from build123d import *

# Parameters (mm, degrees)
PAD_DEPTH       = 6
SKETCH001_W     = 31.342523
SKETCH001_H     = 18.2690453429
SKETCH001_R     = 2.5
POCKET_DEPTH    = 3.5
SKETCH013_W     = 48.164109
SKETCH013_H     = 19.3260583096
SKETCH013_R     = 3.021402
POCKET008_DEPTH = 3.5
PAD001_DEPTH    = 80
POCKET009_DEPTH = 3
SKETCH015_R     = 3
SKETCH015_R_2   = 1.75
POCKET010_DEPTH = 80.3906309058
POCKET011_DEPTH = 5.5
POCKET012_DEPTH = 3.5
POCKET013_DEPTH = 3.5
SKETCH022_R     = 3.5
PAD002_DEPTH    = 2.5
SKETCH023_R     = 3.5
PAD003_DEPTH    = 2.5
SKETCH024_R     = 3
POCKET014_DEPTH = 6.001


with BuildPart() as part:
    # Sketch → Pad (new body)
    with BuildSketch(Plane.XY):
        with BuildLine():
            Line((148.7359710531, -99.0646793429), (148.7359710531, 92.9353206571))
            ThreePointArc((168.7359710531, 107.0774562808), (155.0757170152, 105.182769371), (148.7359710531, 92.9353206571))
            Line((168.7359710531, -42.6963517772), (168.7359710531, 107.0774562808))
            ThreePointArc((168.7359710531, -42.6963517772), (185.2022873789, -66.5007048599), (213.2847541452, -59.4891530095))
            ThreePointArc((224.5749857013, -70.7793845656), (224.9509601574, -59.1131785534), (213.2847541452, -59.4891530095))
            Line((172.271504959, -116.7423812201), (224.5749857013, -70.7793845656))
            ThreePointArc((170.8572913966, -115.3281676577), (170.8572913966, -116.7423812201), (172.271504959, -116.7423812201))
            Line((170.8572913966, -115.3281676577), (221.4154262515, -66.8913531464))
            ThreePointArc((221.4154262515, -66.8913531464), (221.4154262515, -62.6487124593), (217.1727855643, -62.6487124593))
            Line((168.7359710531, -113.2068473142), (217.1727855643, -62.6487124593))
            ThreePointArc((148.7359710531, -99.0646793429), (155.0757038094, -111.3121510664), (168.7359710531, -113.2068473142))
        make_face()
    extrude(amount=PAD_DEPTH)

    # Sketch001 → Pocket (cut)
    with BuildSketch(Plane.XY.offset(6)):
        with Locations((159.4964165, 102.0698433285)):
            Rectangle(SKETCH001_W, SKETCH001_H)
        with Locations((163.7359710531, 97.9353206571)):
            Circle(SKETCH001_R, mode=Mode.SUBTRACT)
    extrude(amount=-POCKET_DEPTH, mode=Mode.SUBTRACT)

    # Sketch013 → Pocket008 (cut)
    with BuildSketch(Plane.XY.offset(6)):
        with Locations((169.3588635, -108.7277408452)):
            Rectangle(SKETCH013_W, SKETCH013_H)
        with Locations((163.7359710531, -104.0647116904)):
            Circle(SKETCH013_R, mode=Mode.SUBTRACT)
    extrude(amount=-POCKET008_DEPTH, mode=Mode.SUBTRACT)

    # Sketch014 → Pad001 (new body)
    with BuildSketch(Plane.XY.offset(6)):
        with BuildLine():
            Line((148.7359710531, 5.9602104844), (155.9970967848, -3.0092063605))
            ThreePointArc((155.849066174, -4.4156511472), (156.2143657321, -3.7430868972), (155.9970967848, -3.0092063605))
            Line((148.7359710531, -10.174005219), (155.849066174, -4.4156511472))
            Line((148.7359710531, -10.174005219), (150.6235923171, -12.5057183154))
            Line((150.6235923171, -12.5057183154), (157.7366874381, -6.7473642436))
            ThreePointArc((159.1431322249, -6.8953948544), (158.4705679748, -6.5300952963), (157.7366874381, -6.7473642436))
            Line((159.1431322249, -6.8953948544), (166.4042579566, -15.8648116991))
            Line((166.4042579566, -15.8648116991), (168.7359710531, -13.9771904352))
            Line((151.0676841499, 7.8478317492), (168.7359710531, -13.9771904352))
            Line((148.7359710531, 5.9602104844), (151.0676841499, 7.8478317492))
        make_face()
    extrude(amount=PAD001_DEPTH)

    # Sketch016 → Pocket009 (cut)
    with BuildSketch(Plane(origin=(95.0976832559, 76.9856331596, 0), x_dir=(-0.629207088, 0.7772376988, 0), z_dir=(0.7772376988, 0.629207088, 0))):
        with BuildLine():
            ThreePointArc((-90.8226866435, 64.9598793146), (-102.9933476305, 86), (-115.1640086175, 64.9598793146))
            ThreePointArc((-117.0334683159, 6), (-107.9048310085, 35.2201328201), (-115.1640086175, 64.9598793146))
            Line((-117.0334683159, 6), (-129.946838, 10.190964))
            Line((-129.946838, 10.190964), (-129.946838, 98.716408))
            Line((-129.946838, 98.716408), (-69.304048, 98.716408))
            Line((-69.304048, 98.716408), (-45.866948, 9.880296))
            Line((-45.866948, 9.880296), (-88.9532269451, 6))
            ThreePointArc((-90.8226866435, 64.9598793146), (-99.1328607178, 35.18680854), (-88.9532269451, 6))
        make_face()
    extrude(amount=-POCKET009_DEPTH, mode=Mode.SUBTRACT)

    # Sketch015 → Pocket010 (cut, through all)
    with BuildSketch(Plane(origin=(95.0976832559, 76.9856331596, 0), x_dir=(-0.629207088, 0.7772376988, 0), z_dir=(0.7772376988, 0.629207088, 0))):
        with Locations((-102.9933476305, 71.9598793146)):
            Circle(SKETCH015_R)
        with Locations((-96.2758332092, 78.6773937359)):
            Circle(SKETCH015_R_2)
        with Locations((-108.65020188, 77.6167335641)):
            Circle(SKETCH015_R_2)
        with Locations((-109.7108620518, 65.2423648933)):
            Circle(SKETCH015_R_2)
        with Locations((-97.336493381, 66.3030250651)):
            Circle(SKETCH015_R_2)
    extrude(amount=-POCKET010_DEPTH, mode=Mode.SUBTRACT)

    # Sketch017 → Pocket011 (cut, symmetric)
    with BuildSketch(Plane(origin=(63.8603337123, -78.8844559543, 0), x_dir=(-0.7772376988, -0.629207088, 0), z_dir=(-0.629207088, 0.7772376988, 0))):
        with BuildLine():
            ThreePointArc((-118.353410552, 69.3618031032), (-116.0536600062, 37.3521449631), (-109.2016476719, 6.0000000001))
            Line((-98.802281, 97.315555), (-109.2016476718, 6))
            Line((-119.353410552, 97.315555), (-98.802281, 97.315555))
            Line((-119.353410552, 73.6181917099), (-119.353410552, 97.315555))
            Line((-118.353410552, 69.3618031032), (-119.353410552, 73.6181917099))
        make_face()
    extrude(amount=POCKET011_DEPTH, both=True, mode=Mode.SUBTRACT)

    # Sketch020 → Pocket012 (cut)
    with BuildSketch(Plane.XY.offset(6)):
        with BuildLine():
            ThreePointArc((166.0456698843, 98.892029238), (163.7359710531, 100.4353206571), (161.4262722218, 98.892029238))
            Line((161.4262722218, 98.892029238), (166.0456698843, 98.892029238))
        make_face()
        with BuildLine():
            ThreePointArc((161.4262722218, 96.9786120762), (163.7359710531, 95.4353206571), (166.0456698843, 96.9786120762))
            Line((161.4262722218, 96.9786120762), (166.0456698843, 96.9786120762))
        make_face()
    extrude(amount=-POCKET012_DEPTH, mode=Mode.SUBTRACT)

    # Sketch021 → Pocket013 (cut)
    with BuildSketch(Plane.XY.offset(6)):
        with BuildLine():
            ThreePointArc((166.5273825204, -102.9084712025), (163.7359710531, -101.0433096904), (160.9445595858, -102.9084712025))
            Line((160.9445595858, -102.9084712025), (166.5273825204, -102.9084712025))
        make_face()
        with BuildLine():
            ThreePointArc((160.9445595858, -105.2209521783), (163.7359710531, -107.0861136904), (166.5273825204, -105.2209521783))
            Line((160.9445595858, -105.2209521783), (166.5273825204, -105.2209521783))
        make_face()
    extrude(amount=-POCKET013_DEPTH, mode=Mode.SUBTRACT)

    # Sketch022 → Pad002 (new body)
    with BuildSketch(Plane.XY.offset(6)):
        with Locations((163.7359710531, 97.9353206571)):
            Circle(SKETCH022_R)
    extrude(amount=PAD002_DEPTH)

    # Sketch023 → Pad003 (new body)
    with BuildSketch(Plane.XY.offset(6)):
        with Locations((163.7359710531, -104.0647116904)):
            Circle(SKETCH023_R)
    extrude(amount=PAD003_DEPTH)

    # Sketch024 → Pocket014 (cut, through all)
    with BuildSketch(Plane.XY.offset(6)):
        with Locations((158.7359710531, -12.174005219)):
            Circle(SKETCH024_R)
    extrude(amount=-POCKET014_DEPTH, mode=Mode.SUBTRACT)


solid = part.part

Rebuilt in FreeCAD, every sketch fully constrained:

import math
import FreeCAD as App
import Part
import Sketcher
Q = App.Units.Quantity

doc = App.newDocument("Part")
body = doc.addObject("PartDesign::Body", "Body")

sketch1 = body.newObject("Sketcher::SketchObject", "Sketch")
sketch1.AttachmentSupport = (doc.getObject("XY_Plane"), [""])
sketch1.MapMode = "FlatFace"
sketch1.addGeometry(Part.LineSegment(App.Vector(148.735971, 92.935321, 0), App.Vector(148.735971, -99.064679, 0)), False)
sketch1.addGeometry(Part.ArcOfCircle(Part.Circle(App.Vector(163.735971, -99.064712, 0), App.Vector(0, 0, 1), 15), math.radians(179.999876), math.radians(289.471221)), False)
sketch1.addGeometry(Part.LineSegment(App.Vector(168.735971, -113.206847, 0), App.Vector(217.172786, -62.648712, 0)), False)
sketch1.addGeometry(Part.ArcOfCircle(Part.Circle(App.Vector(219.294106, -64.770033, 0), App.Vector(0, 0, 1), 3), math.radians(-45), math.radians(135)), False)
sketch1.addGeometry(Part.LineSegment(App.Vector(221.415426, -66.891353, 0), App.Vector(170.857291, -115.328168, 0)), False)
sketch1.addGeometry(Part.ArcOfCircle(Part.Circle(App.Vector(171.564398, -116.035274, 0), App.Vector(0, 0, 1), 1), math.radians(135), math.radians(315)), False)
sketch1.addGeometry(Part.LineSegment(App.Vector(172.271505, -116.742381, 0), App.Vector(224.574986, -70.779385, 0)), False)
sketch1.addGeometry(Part.ArcOfCircle(Part.Circle(App.Vector(219.294106, -64.770033, 0), App.Vector(0, 0, 1), 8), math.radians(-48.691739), math.radians(138.691739)), False)
sketch1.addGeometry(Part.ArcOfCircle(Part.Circle(App.Vector(194.175422, -42.696325, 0), App.Vector(0, 0, 1), 25.439451), math.radians(-179.999939), math.radians(-41.30824)), False)
sketch1.addGeometry(Part.LineSegment(App.Vector(168.735971, -42.696352, 0), App.Vector(168.735971, 107.077456, 0)), False)
sketch1.addGeometry(Part.ArcOfCircle(Part.Circle(App.Vector(163.735971, 92.935321, 0), App.Vector(0, 0, 1), 15), math.radians(70.528779), math.radians(180)), False)
sketch1.addConstraint(Sketcher.Constraint("Coincident", 0, 2, 1, 1))
sketch1.addConstraint(Sketcher.Constraint("Coincident", 1, 2, 2, 1))
sketch1.addConstraint(Sketcher.Constraint("Coincident", 2, 2, 3, 2))
sketch1.addConstraint(Sketcher.Constraint("Coincident", 3, 1, 4, 1))
sketch1.addConstraint(Sketcher.Constraint("Coincident", 4, 2, 5, 1))
sketch1.addConstraint(Sketcher.Constraint("Coincident", 5, 2, 6, 1))
sketch1.addConstraint(Sketcher.Constraint("Coincident", 6, 2, 7, 1))
sketch1.addConstraint(Sketcher.Constraint("Coincident", 7, 2, 8, 2))
sketch1.addConstraint(Sketcher.Constraint("Coincident", 8, 1, 9, 1))
sketch1.addConstraint(Sketcher.Constraint("Coincident", 9, 2, 10, 1))
sketch1.addConstraint(Sketcher.Constraint("Coincident", 10, 2, 0, 1))
sketch1.addConstraint(Sketcher.Constraint("Vertical", 0))
sketch1.addConstraint(Sketcher.Constraint("Vertical", 9))
sketch1.addConstraint(Sketcher.Constraint("Coincident", 7, 3, 3, 3))
sketch1.addConstraint(Sketcher.Constraint("Radius", 1, Q("15 mm")))
sketch1.addConstraint(Sketcher.Constraint("Radius", 3, Q("3 mm")))
sketch1.addConstraint(Sketcher.Constraint("Radius", 5, Q("1 mm")))
sketch1.addConstraint(Sketcher.Constraint("Radius", 7, Q("8 mm")))
sketch1.addConstraint(Sketcher.Constraint("Radius", 10, Q("15 mm")))
sketch1.addConstraint(Sketcher.Constraint("DistanceY", 0, 2, 0, 1, Q("192 mm")))
sketch1.addConstraint(Sketcher.Constraint("DistanceX", 1, 3, 1, 2, Q("5 mm")))
sketch1.addConstraint(Sketcher.Constraint("DistanceX", 10, 3, 9, 2, Q("5 mm")))
sketch1.addConstraint(Sketcher.Constraint("Radius", 8, Q("25.439451 mm")))
sketch1.addConstraint(Sketcher.Constraint("DistanceY", 1, 3, 2, 2, Q("36.415999 mm")))
sketch1.addConstraint(Sketcher.Constraint("DistanceY", 9, 1, 9, 2, Q("149.773808 mm")))
sketch1.addConstraint(Sketcher.Constraint("DistanceX", -1, 1, 5, 3, Q("171.564398 mm")))
sketch1.addConstraint(Sketcher.Constraint("DistanceY", 5, 2, 0, 2, Q("17.677702 mm")))
sketch1.addConstraint(Sketcher.Constraint("DistanceX", 2, 2, 6, 2, Q("7.4022 mm")))
sketch1.addConstraint(Sketcher.Constraint("DistanceY", 3, 1, 7, 2, Q("7.4022 mm")))
sketch1.addConstraint(Sketcher.Constraint("DistanceY", 7, 2, 8, 1, Q("16.792801 mm")))
sketch1.addConstraint(Sketcher.Constraint("Distance", 2, Q("70.01607 mm")))
sketch1.addConstraint(Sketcher.Constraint("Distance", 4, Q("70.01607 mm")))
sketch1.addConstraint(Sketcher.Constraint("DistanceX", -1, 1, 1, 3, Q("163.735971 mm")))
sketch1.addConstraint(Sketcher.Constraint("DistanceY", 1, 3, -1, 1, Q("99.064712 mm")))
sketch1.addConstraint(Sketcher.Constraint("DistanceY", -1, 1, 10, 3, Q("92.935321 mm")))
sketch1.addConstraint(Sketcher.Constraint("DistanceY", 0, 2, -1, 1, Q("99.064679 mm")))
sketch1.addConstraint(Sketcher.Constraint("DistanceX", -1, 1, 4, 2, Q("170.857291 mm")))
sketch1.addConstraint(Sketcher.Constraint("DistanceY", 1, 3, 3, 3, Q("34.294679 mm")))
pad1 = body.newObject("PartDesign::Pad", "Pad")
pad1.Profile = sketch1
pad1.Length = 6

sketch2 = body.newObject("Sketcher::SketchObject", "Sketch001")
sketch2.AttachmentSupport = (doc.getObject("XY_Plane"), [""])
sketch2.MapMode = "FlatFace"
sketch2.AttachmentOffset = App.Placement(App.Vector(0, 0, 6), App.Rotation())
sketch2.addGeometry(Part.LineSegment(App.Vector(143.8, 111.2, 0), App.Vector(143.8, 92.9, 0)), False)
sketch2.addGeometry(Part.LineSegment(App.Vector(143.8, 92.9, 0), App.Vector(175.2, 92.9, 0)), False)
sketch2.addGeometry(Part.LineSegment(App.Vector(175.2, 92.9, 0), App.Vector(175.2, 111.2, 0)), False)
sketch2.addGeometry(Part.LineSegment(App.Vector(175.2, 111.2, 0), App.Vector(143.8, 111.2, 0)), False)
sketch2.addGeometry(Part.Circle(App.Vector(163.7, 97.9, 0), App.Vector(0, 0, 1), 2.5), False)
sketch2.addConstraint(Sketcher.Constraint("Coincident", 0, 2, 1, 1))
sketch2.addConstraint(Sketcher.Constraint("Coincident", 1, 2, 2, 1))
sketch2.addConstraint(Sketcher.Constraint("Coincident", 2, 2, 3, 1))
sketch2.addConstraint(Sketcher.Constraint("Coincident", 3, 2, 0, 1))
sketch2.addConstraint(Sketcher.Constraint("Vertical", 0))
sketch2.addConstraint(Sketcher.Constraint("Horizontal", 1))
sketch2.addConstraint(Sketcher.Constraint("Vertical", 2))
sketch2.addConstraint(Sketcher.Constraint("Horizontal", 3))
sketch2.addConstraint(Sketcher.Constraint("Diameter", 4, Q("5 mm")))
sketch2.addConstraint(Sketcher.Constraint("DistanceY", 0, 2, 4, 3, Q("5 mm")))
sketch2.addConstraint(Sketcher.Constraint("DistanceX", 1, 1, 1, 2, Q("31.342523 mm")))
sketch2.addConstraint(Sketcher.Constraint("DistanceY", 0, 2, 0, 1, Q("18.269045 mm")))
sketch2.addConstraint(Sketcher.Constraint("DistanceX", -1, 1, 4, 3, Q("163.735971 mm")))
sketch2.addConstraint(Sketcher.Constraint("DistanceY", -1, 1, 4, 3, Q("97.935321 mm")))
sketch2.addConstraint(Sketcher.Constraint("DistanceX", -1, 1, 1, 2, Q("175.167678 mm")))
pocket1 = body.newObject("PartDesign::Pocket", "Pocket")
pocket1.Profile = sketch2
pocket1.Length = 3.5

sketch3 = body.newObject("Sketcher::SketchObject", "Sketch002")
sketch3.AttachmentSupport = (doc.getObject("XY_Plane"), [""])
sketch3.MapMode = "FlatFace"
sketch3.AttachmentOffset = App.Placement(App.Vector(0, 0, 6), App.Rotation())
sketch3.addGeometry(Part.LineSegment(App.Vector(145.3, -99.1, 0), App.Vector(145.3, -118.4, 0)), False)
sketch3.addGeometry(Part.LineSegment(App.Vector(145.3, -118.4, 0), App.Vector(193.4, -118.4, 0)), False)
sketch3.addGeometry(Part.LineSegment(App.Vector(193.4, -118.4, 0), App.Vector(193.4, -99.1, 0)), False)
sketch3.addGeometry(Part.LineSegment(App.Vector(193.4, -99.1, 0), App.Vector(145.3, -99.1, 0)), False)
sketch3.addGeometry(Part.Circle(App.Vector(163.7, -104.1, 0), App.Vector(0, 0, 1), 3), False)
sketch3.addConstraint(Sketcher.Constraint("Coincident", 0, 2, 1, 1))
sketch3.addConstraint(Sketcher.Constraint("Coincident", 1, 2, 2, 1))
sketch3.addConstraint(Sketcher.Constraint("Coincident", 2, 2, 3, 1))
sketch3.addConstraint(Sketcher.Constraint("Coincident", 3, 2, 0, 1))
sketch3.addConstraint(Sketcher.Constraint("Vertical", 0))
sketch3.addConstraint(Sketcher.Constraint("Horizontal", 1))
sketch3.addConstraint(Sketcher.Constraint("Vertical", 2))
sketch3.addConstraint(Sketcher.Constraint("Horizontal", 3))
sketch3.addConstraint(Sketcher.Constraint("DistanceY", 4, 3, 2, 2, Q("5 mm")))
sketch3.addConstraint(Sketcher.Constraint("Diameter", 4, Q("6.042804 mm")))
sketch3.addConstraint(Sketcher.Constraint("DistanceX", 1, 1, 1, 2, Q("48.164109 mm")))
sketch3.addConstraint(Sketcher.Constraint("DistanceY", 0, 2, 0, 1, Q("19.326058 mm")))
sketch3.addConstraint(Sketcher.Constraint("DistanceX", -1, 1, 4, 3, Q("163.735971 mm")))
sketch3.addConstraint(Sketcher.Constraint("DistanceY", 4, 3, -1, 1, Q("104.064712 mm")))
sketch3.addConstraint(Sketcher.Constraint("DistanceX", -1, 1, 0, 2, Q("145.276809 mm")))
pocket2 = body.newObject("PartDesign::Pocket", "Pocket001")
pocket2.Profile = sketch3
pocket2.Length = 3.5

sketch4 = body.newObject("Sketcher::SketchObject", "Sketch003")
sketch4.AttachmentSupport = (doc.getObject("XY_Plane"), [""])
sketch4.MapMode = "FlatFace"
sketch4.AttachmentOffset = App.Placement(App.Vector(0, 0, 6), App.Rotation())
sketch4.addGeometry(Part.LineSegment(App.Vector(148.7, 6, 0), App.Vector(156, -3, 0)), False)
sketch4.addGeometry(Part.ArcOfCircle(Part.Circle(App.Vector(155.2, -3.6, 0), App.Vector(0, 0, 1), 1), math.radians(-51), math.radians(39)), False)
sketch4.addGeometry(Part.LineSegment(App.Vector(155.8, -4.4, 0), App.Vector(148.7, -10.2, 0)), False)
sketch4.addGeometry(Part.LineSegment(App.Vector(148.7, -10.2, 0), App.Vector(150.6, -12.5, 0)), False)
sketch4.addGeometry(Part.LineSegment(App.Vector(150.6, -12.5, 0), App.Vector(157.7, -6.7, 0)), False)
sketch4.addGeometry(Part.ArcOfCircle(Part.Circle(App.Vector(158.4, -7.5, 0), App.Vector(0, 0, 1), 1), math.radians(39), math.radians(129)), False)
sketch4.addGeometry(Part.LineSegment(App.Vector(159.1, -6.9, 0), App.Vector(166.4, -15.9, 0)), False)
sketch4.addGeometry(Part.LineSegment(App.Vector(166.4, -15.9, 0), App.Vector(168.7, -14, 0)), False)
sketch4.addGeometry(Part.LineSegment(App.Vector(168.7, -14, 0), App.Vector(151.1, 7.8, 0)), False)
sketch4.addGeometry(Part.LineSegment(App.Vector(151.1, 7.8, 0), App.Vector(148.7, 6, 0)), False)
sketch4.addConstraint(Sketcher.Constraint("Tangent", 0, 2, 1, 2))
sketch4.addConstraint(Sketcher.Constraint("Tangent", 1, 1, 2, 1))
sketch4.addConstraint(Sketcher.Constraint("Coincident", 2, 2, 3, 1))
sketch4.addConstraint(Sketcher.Constraint("Coincident", 3, 2, 4, 1))
sketch4.addConstraint(Sketcher.Constraint("Tangent", 4, 2, 5, 2))
sketch4.addConstraint(Sketcher.Constraint("Tangent", 5, 1, 6, 1))
sketch4.addConstraint(Sketcher.Constraint("Coincident", 6, 2, 7, 1))
sketch4.addConstraint(Sketcher.Constraint("Coincident", 7, 2, 8, 1))
sketch4.addConstraint(Sketcher.Constraint("Coincident", 8, 2, 9, 1))
sketch4.addConstraint(Sketcher.Constraint("Coincident", 9, 2, 0, 1))
sketch4.addConstraint(Sketcher.Constraint("Equal", 1, 5))
sketch4.addConstraint(Sketcher.Constraint("Perpendicular", 0, 2))
sketch4.addConstraint(Sketcher.Constraint("Perpendicular", 2, 3))
sketch4.addConstraint(Sketcher.Constraint("Perpendicular", 3, 4))
sketch4.addConstraint(Sketcher.Constraint("Perpendicular", 4, 6))
sketch4.addConstraint(Sketcher.Constraint("Perpendicular", 6, 7))
sketch4.addConstraint(Sketcher.Constraint("Perpendicular", 7, 8))
sketch4.addConstraint(Sketcher.Constraint("Perpendicular", 8, 9))
sketch4.addConstraint(Sketcher.Constraint("Vertical", 2, 2, 9, 2))
sketch4.addConstraint(Sketcher.Constraint("Equal", 2, 4))
sketch4.addConstraint(Sketcher.Constraint("Equal", 0, 6))
sketch4.addConstraint(Sketcher.Constraint("Equal", 3, 7))
sketch4.addConstraint(Sketcher.Constraint("Radius", 1, Q("1 mm")))
sketch4.addConstraint(Sketcher.Constraint("Distance", 3, Q("3 mm")))
sketch4.addConstraint(Sketcher.Constraint("DistanceY", 5, 3, -1, 1, Q("7.524602 mm")))
sketch4.addConstraint(Sketcher.Constraint("DistanceY", 2, 2, 0, 2, Q("7.164799 mm")))
sketch4.addConstraint(Sketcher.Constraint("Distance", 0, Q("11.540121 mm")))
sketch4.addConstraint(Sketcher.Constraint("DistanceX", -1, 1, 1, 3, Q("155.219859 mm")))
pad2 = body.newObject("PartDesign::Pad", "Pad001")
pad2.Profile = sketch4
pad2.Length = 80

sketch5 = body.newObject("Sketcher::SketchObject", "Sketch004")
sketch5.Placement = App.Placement(App.Vector(95.097683, 76.985633, 0), App.Rotation(App.Vector(-0.629207088, 0.777237699, 0), App.Vector(0, 0, 1), App.Vector(0.777237699, 0.629207088, 0), "ZXY"))
sketch5.addGeometry(Part.ArcOfCircle(Part.Circle(App.Vector(-103, 72, 0), App.Vector(0, 0, 1), 14), math.radians(-30), math.radians(210)), False)
sketch5.addGeometry(Part.ArcOfCircle(Part.Circle(App.Vector(-48, 37, 0), App.Vector(0, 0, 1), 52), math.radians(147), math.radians(217)), False)
sketch5.addGeometry(Part.LineSegment(App.Vector(-89, 6, 0), App.Vector(-46, 10, 0)), False)
sketch5.addGeometry(Part.LineSegment(App.Vector(-46, 10, 0), App.Vector(-69, 99, 0)), False)
sketch5.addGeometry(Part.LineSegment(App.Vector(-69, 99, 0), App.Vector(-130, 99, 0)), False)
sketch5.addGeometry(Part.LineSegment(App.Vector(-130, 99, 0), App.Vector(-130, 10, 0)), False)
sketch5.addGeometry(Part.LineSegment(App.Vector(-130, 10, 0), App.Vector(-117, 6, 0)), False)
sketch5.addGeometry(Part.ArcOfCircle(Part.Circle(App.Vector(-165, 37, 0), App.Vector(0, 0, 1), 57), math.radians(-33), math.radians(29)), False)
sketch5.addConstraint(Sketcher.Constraint("Coincident", 0, 1, 1, 1))
sketch5.addConstraint(Sketcher.Constraint("Coincident", 1, 2, 2, 1))
sketch5.addConstraint(Sketcher.Constraint("Coincident", 2, 2, 3, 1))
sketch5.addConstraint(Sketcher.Constraint("Coincident", 3, 2, 4, 1))
sketch5.addConstraint(Sketcher.Constraint("Coincident", 4, 2, 5, 1))
sketch5.addConstraint(Sketcher.Constraint("Coincident", 5, 2, 6, 1))
sketch5.addConstraint(Sketcher.Constraint("Coincident", 6, 2, 7, 1))
sketch5.addConstraint(Sketcher.Constraint("Coincident", 7, 2, 0, 2))
sketch5.addConstraint(Sketcher.Constraint("Horizontal", 4))
sketch5.addConstraint(Sketcher.Constraint("Vertical", 5))
sketch5.addConstraint(Sketcher.Constraint("Horizontal", 1, 2, 6, 2))
sketch5.addConstraint(Sketcher.Constraint("Horizontal", 0, 1, 7, 2))
sketch5.addConstraint(Sketcher.Constraint("DistanceY", -1, 1, 1, 2, Q("6 mm")))
sketch5.addConstraint(Sketcher.Constraint("DistanceY", 0, 1, 0, 3, Q("7 mm")))
sketch5.addConstraint(Sketcher.Constraint("Radius", 0, Q("14.040121 mm")))
sketch5.addConstraint(Sketcher.Constraint("Radius", 1, Q("51.650877 mm")))
sketch5.addConstraint(Sketcher.Constraint("Radius", 7, Q("57.156946 mm")))
sketch5.addConstraint(Sketcher.Constraint("DistanceX", 4, 2, 4, 1, Q("60.64279 mm")))
sketch5.addConstraint(Sketcher.Constraint("DistanceX", 1, 2, 1, 3, Q("41.445299 mm")))
sketch5.addConstraint(Sketcher.Constraint("DistanceY", 2, 2, 1, 3, Q("26.943401 mm")))
sketch5.addConstraint(Sketcher.Constraint("DistanceX", 0, 3, 2, 2, Q("57.1264 mm")))
sketch5.addConstraint(Sketcher.Constraint("DistanceX", 0, 3, 3, 2, Q("33.6893 mm")))
sketch5.addConstraint(Sketcher.Constraint("DistanceX", 7, 3, 6, 2, Q("47.999599 mm")))
sketch5.addConstraint(Sketcher.Constraint("DistanceY", 5, 2, 5, 1, Q("88.525444 mm")))
sketch5.addConstraint(Sketcher.Constraint("DistanceY", -1, 1, 0, 3, Q("71.959879 mm")))
sketch5.addConstraint(Sketcher.Constraint("DistanceX", 2, 2, -1, 1, Q("45.866948 mm")))
sketch5.addConstraint(Sketcher.Constraint("DistanceY", -1, 1, 3, 2, Q("98.716408 mm")))
pocket3 = body.newObject("PartDesign::Pocket", "Pocket002")
pocket3.Profile = sketch5
pocket3.Length = 3

sketch6 = body.newObject("Sketcher::SketchObject", "Sketch005")
sketch6.Placement = App.Placement(App.Vector(95.097683, 76.985633, 0), App.Rotation(App.Vector(-0.629207088, 0.777237699, 0), App.Vector(0, 0, 1), App.Vector(0.777237699, 0.629207088, 0), "ZXY"))
sketch6.addGeometry(Part.Circle(App.Vector(-103, 72, 0), App.Vector(0, 0, 1), 3), False)
sketch6.addGeometry(Part.Circle(App.Vector(-96.3, 78.7, 0), App.Vector(0, 0, 1), 1.8), False)
sketch6.addGeometry(Part.Circle(App.Vector(-108.7, 77.6, 0), App.Vector(0, 0, 1), 1.8), False)
sketch6.addGeometry(Part.Circle(App.Vector(-109.7, 65.2, 0), App.Vector(0, 0, 1), 1.8), False)
sketch6.addGeometry(Part.Circle(App.Vector(-97.3, 66.3, 0), App.Vector(0, 0, 1), 1.8), False)
sketch6.addConstraint(Sketcher.Constraint("Equal", 1, 2))
sketch6.addConstraint(Sketcher.Constraint("Equal", 2, 3))
sketch6.addConstraint(Sketcher.Constraint("Equal", 3, 4))
sketch6.addConstraint(Sketcher.Constraint("Diameter", 0, Q("6 mm")))
sketch6.addConstraint(Sketcher.Constraint("Diameter", 1, Q("3.5 mm")))
sketch6.addConstraint(Sketcher.Constraint("DistanceX", 2, 3, -1, 1, Q("108.650202 mm")))
sketch6.addConstraint(Sketcher.Constraint("DistanceY", -1, 1, 0, 3, Q("71.959879 mm")))
sketch6.addConstraint(Sketcher.Constraint("DistanceX", 2, 3, 1, 3, Q("12.374369 mm")))
sketch6.addConstraint(Sketcher.Constraint("DistanceY", 2, 3, 1, 3, Q("1.06066 mm")))
sketch6.addConstraint(Sketcher.Constraint("DistanceX", 3, 3, 2, 3, Q("1.06066 mm")))
sketch6.addConstraint(Sketcher.Constraint("DistanceY", 3, 3, 2, 3, Q("12.374369 mm")))
sketch6.addConstraint(Sketcher.Constraint("DistanceX", 3, 3, 4, 3, Q("12.374369 mm")))
sketch6.addConstraint(Sketcher.Constraint("DistanceY", 3, 3, 4, 3, Q("1.06066 mm")))
sketch6.addConstraint(Sketcher.Constraint("DistanceX", 0, 3, -1, 1, Q("102.993348 mm")))
sketch6.addConstraint(Sketcher.Constraint("DistanceY", -1, 1, 1, 3, Q("78.677394 mm")))
pocket4 = body.newObject("PartDesign::Pocket", "Pocket003")
pocket4.Profile = sketch6
pocket4.Type = "ThroughAll"

sketch7 = body.newObject("Sketcher::SketchObject", "Sketch006")
sketch7.Placement = App.Placement(App.Vector(63.860334, -78.884456, 0), App.Rotation(App.Vector(-0.777237699, -0.629207088, 0), App.Vector(0, 0, 1), App.Vector(-0.629207088, 0.777237699, 0), "ZXY"))
sketch7.addGeometry(Part.ArcOfCircle(Part.Circle(App.Vector(105.6, 69.4, 0), App.Vector(0, 0, 1), 223.9), math.radians(180), math.radians(196.44)), False)
sketch7.addGeometry(Part.LineSegment(App.Vector(-109.2, 6, 0), App.Vector(-98.8, 97.3, 0)), False)
sketch7.addGeometry(Part.LineSegment(App.Vector(-98.8, 97.3, 0), App.Vector(-119.4, 97.3, 0)), False)
sketch7.addGeometry(Part.LineSegment(App.Vector(-119.4, 97.3, 0), App.Vector(-119.4, 73.6, 0)), False)
sketch7.addGeometry(Part.LineSegment(App.Vector(-119.4, 73.6, 0), App.Vector(-118.4, 69.4, 0)), False)
sketch7.addConstraint(Sketcher.Constraint("Coincident", 0, 2, 1, 1))
sketch7.addConstraint(Sketcher.Constraint("Coincident", 1, 2, 2, 1))
sketch7.addConstraint(Sketcher.Constraint("Coincident", 2, 2, 3, 1))
sketch7.addConstraint(Sketcher.Constraint("Coincident", 3, 2, 4, 1))
sketch7.addConstraint(Sketcher.Constraint("Coincident", 4, 2, 0, 1))
sketch7.addConstraint(Sketcher.Constraint("Horizontal", 2))
sketch7.addConstraint(Sketcher.Constraint("Vertical", 3))
sketch7.addConstraint(Sketcher.Constraint("Horizontal", 0, 3, 4, 2))
sketch7.addConstraint(Sketcher.Constraint("DistanceY", -1, 1, 0, 2, Q("6 mm")))
sketch7.addConstraint(Sketcher.Constraint("DistanceX", 3, 2, 4, 2, Q("1 mm")))
sketch7.addConstraint(Sketcher.Constraint("Radius", 0, Q("223.917123 mm")))
sketch7.addConstraint(Sketcher.Constraint("DistanceX", 2, 2, 2, 1, Q("20.55113 mm")))
sketch7.addConstraint(Sketcher.Constraint("Distance", 4, Q("4.372281 mm")))
sketch7.addConstraint(Sketcher.Constraint("DistanceY", 3, 2, 3, 1, Q("23.697363 mm")))
sketch7.addConstraint(Sketcher.Constraint("DistanceX", 1, 2, -1, 1, Q("98.802281 mm")))
sketch7.addConstraint(Sketcher.Constraint("DistanceY", -1, 1, 3, 2, Q("73.618192 mm")))
pocket5 = body.newObject("PartDesign::Pocket", "Pocket004")
pocket5.Profile = sketch7
pocket5.Length = 11
pocket5.Midplane = True

sketch8 = body.newObject("Sketcher::SketchObject", "Sketch007")
sketch8.AttachmentSupport = (doc.getObject("XY_Plane"), [""])
sketch8.MapMode = "FlatFace"
sketch8.AttachmentOffset = App.Placement(App.Vector(0, 0, 6), App.Rotation())
sketch8.addGeometry(Part.ArcOfCircle(Part.Circle(App.Vector(163.7, 97.9, 0), App.Vector(0, 0, 1), 2.5), math.radians(23), math.radians(157)), False)
sketch8.addGeometry(Part.LineSegment(App.Vector(161.4, 98.9, 0), App.Vector(166, 98.9, 0)), False)
sketch8.addGeometry(Part.ArcOfCircle(Part.Circle(App.Vector(163.7, 97.9, 0), App.Vector(0, 0, 1), 2.5), math.radians(-157), math.radians(-23)), False)
sketch8.addGeometry(Part.LineSegment(App.Vector(166, 97, 0), App.Vector(161.4, 97, 0)), False)
sketch8.addConstraint(Sketcher.Constraint("Coincident", 0, 1, 1, 2))
sketch8.addConstraint(Sketcher.Constraint("Coincident", 1, 1, 0, 2))
sketch8.addConstraint(Sketcher.Constraint("Coincident", 2, 1, 3, 2))
sketch8.addConstraint(Sketcher.Constraint("Coincident", 3, 1, 2, 2))
sketch8.addConstraint(Sketcher.Constraint("Horizontal", 1))
sketch8.addConstraint(Sketcher.Constraint("Horizontal", 3))
sketch8.addConstraint(Sketcher.Constraint("Coincident", 2, 3, 0, 3))
sketch8.addConstraint(Sketcher.Constraint("Equal", 0, 2))
sketch8.addConstraint(Sketcher.Constraint("Vertical", 1, 1, 2, 1))
sketch8.addConstraint(Sketcher.Constraint("Radius", 0, Q("2.5 mm")))
sketch8.addConstraint(Sketcher.Constraint("DistanceX", 0, 3, 0, 1, Q("2.309699 mm")))
sketch8.addConstraint(Sketcher.Constraint("DistanceX", -1, 1, 0, 3, Q("163.735971 mm")))
sketch8.addConstraint(Sketcher.Constraint("DistanceY", -1, 1, 0, 3, Q("97.935321 mm")))
pocket6 = body.newObject("PartDesign::Pocket", "Pocket005")
pocket6.Profile = sketch8
pocket6.Length = 3.5

sketch9 = body.newObject("Sketcher::SketchObject", "Sketch008")
sketch9.AttachmentSupport = (doc.getObject("XY_Plane"), [""])
sketch9.MapMode = "FlatFace"
sketch9.AttachmentOffset = App.Placement(App.Vector(0, 0, 6), App.Rotation())
sketch9.addGeometry(Part.ArcOfCircle(Part.Circle(App.Vector(163.7, -104.1, 0), App.Vector(0, 0, 1), 3), math.radians(23), math.radians(157)), False)
sketch9.addGeometry(Part.LineSegment(App.Vector(160.9, -102.9, 0), App.Vector(166.5, -102.9, 0)), False)
sketch9.addGeometry(Part.ArcOfCircle(Part.Circle(App.Vector(163.7, -104.1, 0), App.Vector(0, 0, 1), 3), math.radians(-157), math.radians(-23)), False)
sketch9.addGeometry(Part.LineSegment(App.Vector(166.5, -105.2, 0), App.Vector(160.9, -105.2, 0)), False)
sketch9.addConstraint(Sketcher.Constraint("Coincident", 0, 1, 1, 2))
sketch9.addConstraint(Sketcher.Constraint("Coincident", 1, 1, 0, 2))
sketch9.addConstraint(Sketcher.Constraint("Coincident", 2, 1, 3, 2))
sketch9.addConstraint(Sketcher.Constraint("Coincident", 3, 1, 2, 2))
sketch9.addConstraint(Sketcher.Constraint("Horizontal", 1))
sketch9.addConstraint(Sketcher.Constraint("Horizontal", 3))
sketch9.addConstraint(Sketcher.Constraint("Coincident", 2, 3, 0, 3))
sketch9.addConstraint(Sketcher.Constraint("Equal", 0, 2))
sketch9.addConstraint(Sketcher.Constraint("Vertical", 1, 1, 2, 1))
sketch9.addConstraint(Sketcher.Constraint("Radius", 0, Q("3.021402 mm")))
sketch9.addConstraint(Sketcher.Constraint("DistanceX", 1, 1, 1, 2, Q("5.582823 mm")))
sketch9.addConstraint(Sketcher.Constraint("DistanceX", -1, 1, 0, 3, Q("163.735971 mm")))
sketch9.addConstraint(Sketcher.Constraint("DistanceY", 0, 3, -1, 1, Q("104.064712 mm")))
pocket7 = body.newObject("PartDesign::Pocket", "Pocket006")
pocket7.Profile = sketch9
pocket7.Length = 3.5

sketch10 = body.newObject("Sketcher::SketchObject", "Sketch009")
sketch10.AttachmentSupport = (doc.getObject("XY_Plane"), [""])
sketch10.MapMode = "FlatFace"
sketch10.AttachmentOffset = App.Placement(App.Vector(0, 0, 6), App.Rotation())
sketch10.addGeometry(Part.Circle(App.Vector(163.7, 97.9, 0), App.Vector(0, 0, 1), 3.5), False)
sketch10.addConstraint(Sketcher.Constraint("Diameter", 0, Q("7 mm")))
sketch10.addConstraint(Sketcher.Constraint("DistanceX", -1, 1, 0, 3, Q("163.735971 mm")))
sketch10.addConstraint(Sketcher.Constraint("DistanceY", -1, 1, 0, 3, Q("97.935321 mm")))
pad3 = body.newObject("PartDesign::Pad", "Pad002")
pad3.Profile = sketch10
pad3.Length = 2.5

sketch11 = body.newObject("Sketcher::SketchObject", "Sketch010")
sketch11.AttachmentSupport = (doc.getObject("XY_Plane"), [""])
sketch11.MapMode = "FlatFace"
sketch11.AttachmentOffset = App.Placement(App.Vector(0, 0, 6), App.Rotation())
sketch11.addGeometry(Part.Circle(App.Vector(163.7, -104.1, 0), App.Vector(0, 0, 1), 3.5), False)
sketch11.addConstraint(Sketcher.Constraint("Diameter", 0, Q("7 mm")))
sketch11.addConstraint(Sketcher.Constraint("DistanceX", -1, 1, 0, 3, Q("163.735971 mm")))
sketch11.addConstraint(Sketcher.Constraint("DistanceY", 0, 3, -1, 1, Q("104.064712 mm")))
pad4 = body.newObject("PartDesign::Pad", "Pad003")
pad4.Profile = sketch11
pad4.Length = 2.5

sketch12 = body.newObject("Sketcher::SketchObject", "Sketch011")
sketch12.AttachmentSupport = (doc.getObject("XY_Plane"), [""])
sketch12.MapMode = "FlatFace"
sketch12.AttachmentOffset = App.Placement(App.Vector(0, 0, 6), App.Rotation())
sketch12.addGeometry(Part.Circle(App.Vector(158.7, -12.2, 0), App.Vector(0, 0, 1), 3), False)
sketch12.addConstraint(Sketcher.Constraint("Diameter", 0, Q("6 mm")))
sketch12.addConstraint(Sketcher.Constraint("DistanceX", -1, 1, 0, 3, Q("158.735971 mm")))
sketch12.addConstraint(Sketcher.Constraint("DistanceY", 0, 3, -1, 1, Q("12.174005 mm")))
pocket8 = body.newObject("PartDesign::Pocket", "Pocket007")
pocket8.Profile = sketch12
pocket8.Type = "ThroughAll"

doc.recompute()
